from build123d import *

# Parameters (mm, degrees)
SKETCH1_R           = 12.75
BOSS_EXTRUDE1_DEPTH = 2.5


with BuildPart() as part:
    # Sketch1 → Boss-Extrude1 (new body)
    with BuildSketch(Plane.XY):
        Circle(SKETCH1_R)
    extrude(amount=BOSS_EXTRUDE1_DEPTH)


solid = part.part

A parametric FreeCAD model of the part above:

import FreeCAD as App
import Part
import Sketcher
from FreeCAD import Vector

doc = App.newDocument("Part")
params = doc.addObject("Spreadsheet::Sheet", "Params")
for row, (alias, value) in enumerate([
    ("sketch1_diameter", "25.5 mm"),
    ("pad1_length", "2.5 mm"),
], start=1):
    params.set(f"A{row}", alias)
    params.set(f"B{row}", "=" + value)
    params.setAlias(f"B{row}", alias)

body = doc.addObject("PartDesign::Body", "Body")

sketch1 = body.newObject("Sketcher::SketchObject", "Sketch")
sketch1.AttachmentSupport = (doc.getObject("XY_Plane"), [""])
sketch1.MapMode = "FlatFace"
sketch1.addGeometry(Part.Circle(Vector(0, 0, 0), Vector(0, 0, 1), 13), False)
sketch1.addConstraint(Sketcher.Constraint("Coincident", 0, 3, -1, 1))
sketch1.addConstraint(Sketcher.Constraint("Diameter", 0, 25.5))
sketch1.setExpression("Constraints[1]", "Params.sketch1_diameter")
pad1 = body.newObject("PartDesign::Pad", "Pad")
pad1.Profile = sketch1
pad1.setExpression("Length", "Params.pad1_length")

doc.recompute()
